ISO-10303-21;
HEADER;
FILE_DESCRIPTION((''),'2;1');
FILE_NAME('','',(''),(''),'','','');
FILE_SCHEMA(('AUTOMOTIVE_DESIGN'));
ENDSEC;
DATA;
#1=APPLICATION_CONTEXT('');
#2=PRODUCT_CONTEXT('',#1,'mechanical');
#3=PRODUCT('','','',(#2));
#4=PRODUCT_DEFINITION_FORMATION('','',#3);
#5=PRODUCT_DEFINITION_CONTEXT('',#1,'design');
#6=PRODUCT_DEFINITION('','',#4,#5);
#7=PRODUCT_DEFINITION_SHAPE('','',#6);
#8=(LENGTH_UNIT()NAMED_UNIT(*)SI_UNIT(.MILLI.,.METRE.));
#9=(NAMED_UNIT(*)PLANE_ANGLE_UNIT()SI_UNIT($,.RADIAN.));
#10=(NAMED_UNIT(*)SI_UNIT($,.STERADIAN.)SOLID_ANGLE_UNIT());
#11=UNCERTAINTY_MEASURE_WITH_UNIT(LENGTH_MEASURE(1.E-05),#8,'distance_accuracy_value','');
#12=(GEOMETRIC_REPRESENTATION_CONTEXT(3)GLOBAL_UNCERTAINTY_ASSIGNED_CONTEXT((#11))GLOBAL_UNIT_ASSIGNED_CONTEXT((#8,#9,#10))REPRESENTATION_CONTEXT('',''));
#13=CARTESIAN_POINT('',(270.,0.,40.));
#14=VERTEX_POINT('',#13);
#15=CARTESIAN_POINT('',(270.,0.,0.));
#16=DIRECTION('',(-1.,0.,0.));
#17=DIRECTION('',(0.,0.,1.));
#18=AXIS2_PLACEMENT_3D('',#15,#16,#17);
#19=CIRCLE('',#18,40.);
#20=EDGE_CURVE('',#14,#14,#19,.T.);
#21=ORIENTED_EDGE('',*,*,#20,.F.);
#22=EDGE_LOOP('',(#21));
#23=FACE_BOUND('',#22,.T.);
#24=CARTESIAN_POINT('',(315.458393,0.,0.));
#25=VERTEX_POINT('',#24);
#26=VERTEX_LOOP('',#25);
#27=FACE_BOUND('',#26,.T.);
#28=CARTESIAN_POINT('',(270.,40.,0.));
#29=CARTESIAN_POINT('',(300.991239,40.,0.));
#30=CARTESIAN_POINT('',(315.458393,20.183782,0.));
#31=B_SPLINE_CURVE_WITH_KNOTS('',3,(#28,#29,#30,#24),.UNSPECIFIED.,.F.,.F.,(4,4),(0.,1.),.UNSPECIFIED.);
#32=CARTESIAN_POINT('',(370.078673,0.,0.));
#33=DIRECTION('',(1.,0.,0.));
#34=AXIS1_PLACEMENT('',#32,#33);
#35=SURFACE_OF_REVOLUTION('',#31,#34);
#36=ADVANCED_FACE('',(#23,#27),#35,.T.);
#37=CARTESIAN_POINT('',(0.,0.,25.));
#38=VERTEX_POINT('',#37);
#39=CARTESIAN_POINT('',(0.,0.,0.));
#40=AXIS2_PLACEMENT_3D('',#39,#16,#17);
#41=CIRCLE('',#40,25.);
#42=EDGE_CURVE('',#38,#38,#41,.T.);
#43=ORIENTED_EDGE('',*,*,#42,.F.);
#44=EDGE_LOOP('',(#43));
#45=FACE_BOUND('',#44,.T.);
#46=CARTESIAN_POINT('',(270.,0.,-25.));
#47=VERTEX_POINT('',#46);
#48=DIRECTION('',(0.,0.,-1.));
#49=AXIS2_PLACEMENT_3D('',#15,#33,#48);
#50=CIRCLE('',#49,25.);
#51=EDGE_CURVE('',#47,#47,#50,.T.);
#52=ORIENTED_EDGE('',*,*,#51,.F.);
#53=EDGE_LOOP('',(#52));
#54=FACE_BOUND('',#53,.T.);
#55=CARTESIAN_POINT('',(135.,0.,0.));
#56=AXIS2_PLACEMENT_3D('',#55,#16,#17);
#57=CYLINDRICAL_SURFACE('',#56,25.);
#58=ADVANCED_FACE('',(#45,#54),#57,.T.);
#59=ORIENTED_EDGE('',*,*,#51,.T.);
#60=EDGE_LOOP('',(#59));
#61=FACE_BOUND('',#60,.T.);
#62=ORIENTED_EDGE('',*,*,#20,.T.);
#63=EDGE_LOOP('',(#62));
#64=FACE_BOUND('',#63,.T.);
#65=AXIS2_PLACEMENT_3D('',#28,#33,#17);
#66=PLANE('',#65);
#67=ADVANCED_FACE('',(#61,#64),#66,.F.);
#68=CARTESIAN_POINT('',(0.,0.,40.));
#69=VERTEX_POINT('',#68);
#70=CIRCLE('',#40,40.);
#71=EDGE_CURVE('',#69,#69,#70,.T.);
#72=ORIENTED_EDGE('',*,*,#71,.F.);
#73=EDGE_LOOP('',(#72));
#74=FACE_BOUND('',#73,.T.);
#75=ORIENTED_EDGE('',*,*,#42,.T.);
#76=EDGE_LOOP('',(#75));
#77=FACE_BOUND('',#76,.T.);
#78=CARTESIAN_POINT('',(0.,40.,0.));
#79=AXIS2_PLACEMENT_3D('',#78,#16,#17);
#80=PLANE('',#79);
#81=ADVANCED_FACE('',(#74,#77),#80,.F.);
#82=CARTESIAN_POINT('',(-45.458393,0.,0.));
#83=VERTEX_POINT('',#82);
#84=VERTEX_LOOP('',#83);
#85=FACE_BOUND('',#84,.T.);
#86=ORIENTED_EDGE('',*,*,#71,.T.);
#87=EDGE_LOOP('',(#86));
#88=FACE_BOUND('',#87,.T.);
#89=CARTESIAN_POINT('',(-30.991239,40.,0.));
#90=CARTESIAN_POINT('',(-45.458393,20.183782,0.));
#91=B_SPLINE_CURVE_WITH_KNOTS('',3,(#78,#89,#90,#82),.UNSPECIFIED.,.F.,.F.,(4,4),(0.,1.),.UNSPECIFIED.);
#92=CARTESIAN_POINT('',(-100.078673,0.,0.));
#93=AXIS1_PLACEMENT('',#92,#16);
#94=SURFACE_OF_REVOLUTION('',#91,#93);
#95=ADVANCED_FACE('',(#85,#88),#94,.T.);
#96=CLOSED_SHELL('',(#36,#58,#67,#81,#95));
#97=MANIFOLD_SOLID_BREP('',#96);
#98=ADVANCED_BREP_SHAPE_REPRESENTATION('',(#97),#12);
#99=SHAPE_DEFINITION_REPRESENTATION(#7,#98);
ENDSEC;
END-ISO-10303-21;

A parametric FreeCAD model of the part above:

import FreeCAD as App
import Part
import Sketcher
from FreeCAD import Vector

doc = App.newDocument("Part")
params = doc.addObject("Spreadsheet::Sheet", "Params")
for row, (alias, value) in enumerate([
    ("sketch1_diameter", "50 mm"),
    ("pad1_length", "135 mm"),
    ("revolution_angle", "360 deg"),
], start=1):
    params.set(f"A{row}", alias)
    params.set(f"B{row}", "=" + value)
    params.setAlias(f"B{row}", alias)

body = doc.addObject("PartDesign::Body", "Body")

# Sketch on YZ plane
sketch1 = body.newObject("Sketcher::SketchObject", "Sketch")
sketch1.AttachmentSupport = (doc.getObject("YZ_Plane"), [""])
sketch1.MapMode = "FlatFace"
sketch1.addGeometry(Part.Circle(Vector(0, 0, 0), Vector(0, 0, 1), 25), False)
sketch1.addConstraint(Sketcher.Constraint("Coincident", 0, 3, -1, 1))
sketch1.addConstraint(Sketcher.Constraint("Diameter", 0, 50.0))
sketch1.setExpression("Constraints[1]", "Params.sketch1_diameter")
pad1 = body.newObject("PartDesign::Pad", "Pad")
pad1.Profile = sketch1
pad1.setExpression("Length", "Params.pad1_length")

# Sketch on XY plane
sketch2 = body.newObject("Sketcher::SketchObject", "Sketch001")
sketch2.AttachmentSupport = (doc.getObject("XY_Plane"), [""])
sketch2.MapMode = "FlatFace"
sketch2.addGeometry(Part.LineSegment(Vector(-45.458393, 0, 0), Vector(0, 0, 0)), False)
sketch2.addGeometry(Part.LineSegment(Vector(0, 0, 0), Vector(0, 40, 0)), False)
sketch2.addGeometry(Part.BSplineCurve([Vector(-45.458393, 0, 0), Vector(-45.458393, 20.183782, 0), Vector(-30.991239, 40, 0), Vector(0, 40, 0)], [4, 4], [0, 1], False, 3, [1, 1, 1, 1], False), False)
sketch2.addConstraint(Sketcher.Constraint("Block", 2))
sketch2.addConstraint(Sketcher.Constraint("Coincident", 0, 2, 1, 1))
sketch2.addConstraint(Sketcher.Constraint("Coincident", 1, 2, 2, 2))
sketch2.addConstraint(Sketcher.Constraint("Coincident", 2, 1, 0, 1))
sketch2.addConstraint(Sketcher.Constraint("Horizontal", 0))
sketch2.addConstraint(Sketcher.Constraint("Vertical", 1))
revolution = body.newObject("PartDesign::Revolution", "Revolution")
revolution.Profile = sketch2
revolution.ReferenceAxis = (sketch2, ["H_Axis"])
revolution.setExpression("Angle", "Params.revolution_angle")
doc.recompute()

datumplane = body.newObject("PartDesign::Plane", "DatumPlane")
datumplane.AttachmentSupport = (doc.getObject("YZ_Plane"), [""])
datumplane.MapMode = "FlatFace"
datumplane.AttachmentOffset = App.Placement(Vector(0, 0, 135), App.Rotation())
mirrored = body.newObject("PartDesign::Mirrored", "Mirrored")
mirrored.Originals = [pad1, revolution]
mirrored.MirrorPlane = (datumplane, [""])
body.Tip = mirrored

doc.recompute()
